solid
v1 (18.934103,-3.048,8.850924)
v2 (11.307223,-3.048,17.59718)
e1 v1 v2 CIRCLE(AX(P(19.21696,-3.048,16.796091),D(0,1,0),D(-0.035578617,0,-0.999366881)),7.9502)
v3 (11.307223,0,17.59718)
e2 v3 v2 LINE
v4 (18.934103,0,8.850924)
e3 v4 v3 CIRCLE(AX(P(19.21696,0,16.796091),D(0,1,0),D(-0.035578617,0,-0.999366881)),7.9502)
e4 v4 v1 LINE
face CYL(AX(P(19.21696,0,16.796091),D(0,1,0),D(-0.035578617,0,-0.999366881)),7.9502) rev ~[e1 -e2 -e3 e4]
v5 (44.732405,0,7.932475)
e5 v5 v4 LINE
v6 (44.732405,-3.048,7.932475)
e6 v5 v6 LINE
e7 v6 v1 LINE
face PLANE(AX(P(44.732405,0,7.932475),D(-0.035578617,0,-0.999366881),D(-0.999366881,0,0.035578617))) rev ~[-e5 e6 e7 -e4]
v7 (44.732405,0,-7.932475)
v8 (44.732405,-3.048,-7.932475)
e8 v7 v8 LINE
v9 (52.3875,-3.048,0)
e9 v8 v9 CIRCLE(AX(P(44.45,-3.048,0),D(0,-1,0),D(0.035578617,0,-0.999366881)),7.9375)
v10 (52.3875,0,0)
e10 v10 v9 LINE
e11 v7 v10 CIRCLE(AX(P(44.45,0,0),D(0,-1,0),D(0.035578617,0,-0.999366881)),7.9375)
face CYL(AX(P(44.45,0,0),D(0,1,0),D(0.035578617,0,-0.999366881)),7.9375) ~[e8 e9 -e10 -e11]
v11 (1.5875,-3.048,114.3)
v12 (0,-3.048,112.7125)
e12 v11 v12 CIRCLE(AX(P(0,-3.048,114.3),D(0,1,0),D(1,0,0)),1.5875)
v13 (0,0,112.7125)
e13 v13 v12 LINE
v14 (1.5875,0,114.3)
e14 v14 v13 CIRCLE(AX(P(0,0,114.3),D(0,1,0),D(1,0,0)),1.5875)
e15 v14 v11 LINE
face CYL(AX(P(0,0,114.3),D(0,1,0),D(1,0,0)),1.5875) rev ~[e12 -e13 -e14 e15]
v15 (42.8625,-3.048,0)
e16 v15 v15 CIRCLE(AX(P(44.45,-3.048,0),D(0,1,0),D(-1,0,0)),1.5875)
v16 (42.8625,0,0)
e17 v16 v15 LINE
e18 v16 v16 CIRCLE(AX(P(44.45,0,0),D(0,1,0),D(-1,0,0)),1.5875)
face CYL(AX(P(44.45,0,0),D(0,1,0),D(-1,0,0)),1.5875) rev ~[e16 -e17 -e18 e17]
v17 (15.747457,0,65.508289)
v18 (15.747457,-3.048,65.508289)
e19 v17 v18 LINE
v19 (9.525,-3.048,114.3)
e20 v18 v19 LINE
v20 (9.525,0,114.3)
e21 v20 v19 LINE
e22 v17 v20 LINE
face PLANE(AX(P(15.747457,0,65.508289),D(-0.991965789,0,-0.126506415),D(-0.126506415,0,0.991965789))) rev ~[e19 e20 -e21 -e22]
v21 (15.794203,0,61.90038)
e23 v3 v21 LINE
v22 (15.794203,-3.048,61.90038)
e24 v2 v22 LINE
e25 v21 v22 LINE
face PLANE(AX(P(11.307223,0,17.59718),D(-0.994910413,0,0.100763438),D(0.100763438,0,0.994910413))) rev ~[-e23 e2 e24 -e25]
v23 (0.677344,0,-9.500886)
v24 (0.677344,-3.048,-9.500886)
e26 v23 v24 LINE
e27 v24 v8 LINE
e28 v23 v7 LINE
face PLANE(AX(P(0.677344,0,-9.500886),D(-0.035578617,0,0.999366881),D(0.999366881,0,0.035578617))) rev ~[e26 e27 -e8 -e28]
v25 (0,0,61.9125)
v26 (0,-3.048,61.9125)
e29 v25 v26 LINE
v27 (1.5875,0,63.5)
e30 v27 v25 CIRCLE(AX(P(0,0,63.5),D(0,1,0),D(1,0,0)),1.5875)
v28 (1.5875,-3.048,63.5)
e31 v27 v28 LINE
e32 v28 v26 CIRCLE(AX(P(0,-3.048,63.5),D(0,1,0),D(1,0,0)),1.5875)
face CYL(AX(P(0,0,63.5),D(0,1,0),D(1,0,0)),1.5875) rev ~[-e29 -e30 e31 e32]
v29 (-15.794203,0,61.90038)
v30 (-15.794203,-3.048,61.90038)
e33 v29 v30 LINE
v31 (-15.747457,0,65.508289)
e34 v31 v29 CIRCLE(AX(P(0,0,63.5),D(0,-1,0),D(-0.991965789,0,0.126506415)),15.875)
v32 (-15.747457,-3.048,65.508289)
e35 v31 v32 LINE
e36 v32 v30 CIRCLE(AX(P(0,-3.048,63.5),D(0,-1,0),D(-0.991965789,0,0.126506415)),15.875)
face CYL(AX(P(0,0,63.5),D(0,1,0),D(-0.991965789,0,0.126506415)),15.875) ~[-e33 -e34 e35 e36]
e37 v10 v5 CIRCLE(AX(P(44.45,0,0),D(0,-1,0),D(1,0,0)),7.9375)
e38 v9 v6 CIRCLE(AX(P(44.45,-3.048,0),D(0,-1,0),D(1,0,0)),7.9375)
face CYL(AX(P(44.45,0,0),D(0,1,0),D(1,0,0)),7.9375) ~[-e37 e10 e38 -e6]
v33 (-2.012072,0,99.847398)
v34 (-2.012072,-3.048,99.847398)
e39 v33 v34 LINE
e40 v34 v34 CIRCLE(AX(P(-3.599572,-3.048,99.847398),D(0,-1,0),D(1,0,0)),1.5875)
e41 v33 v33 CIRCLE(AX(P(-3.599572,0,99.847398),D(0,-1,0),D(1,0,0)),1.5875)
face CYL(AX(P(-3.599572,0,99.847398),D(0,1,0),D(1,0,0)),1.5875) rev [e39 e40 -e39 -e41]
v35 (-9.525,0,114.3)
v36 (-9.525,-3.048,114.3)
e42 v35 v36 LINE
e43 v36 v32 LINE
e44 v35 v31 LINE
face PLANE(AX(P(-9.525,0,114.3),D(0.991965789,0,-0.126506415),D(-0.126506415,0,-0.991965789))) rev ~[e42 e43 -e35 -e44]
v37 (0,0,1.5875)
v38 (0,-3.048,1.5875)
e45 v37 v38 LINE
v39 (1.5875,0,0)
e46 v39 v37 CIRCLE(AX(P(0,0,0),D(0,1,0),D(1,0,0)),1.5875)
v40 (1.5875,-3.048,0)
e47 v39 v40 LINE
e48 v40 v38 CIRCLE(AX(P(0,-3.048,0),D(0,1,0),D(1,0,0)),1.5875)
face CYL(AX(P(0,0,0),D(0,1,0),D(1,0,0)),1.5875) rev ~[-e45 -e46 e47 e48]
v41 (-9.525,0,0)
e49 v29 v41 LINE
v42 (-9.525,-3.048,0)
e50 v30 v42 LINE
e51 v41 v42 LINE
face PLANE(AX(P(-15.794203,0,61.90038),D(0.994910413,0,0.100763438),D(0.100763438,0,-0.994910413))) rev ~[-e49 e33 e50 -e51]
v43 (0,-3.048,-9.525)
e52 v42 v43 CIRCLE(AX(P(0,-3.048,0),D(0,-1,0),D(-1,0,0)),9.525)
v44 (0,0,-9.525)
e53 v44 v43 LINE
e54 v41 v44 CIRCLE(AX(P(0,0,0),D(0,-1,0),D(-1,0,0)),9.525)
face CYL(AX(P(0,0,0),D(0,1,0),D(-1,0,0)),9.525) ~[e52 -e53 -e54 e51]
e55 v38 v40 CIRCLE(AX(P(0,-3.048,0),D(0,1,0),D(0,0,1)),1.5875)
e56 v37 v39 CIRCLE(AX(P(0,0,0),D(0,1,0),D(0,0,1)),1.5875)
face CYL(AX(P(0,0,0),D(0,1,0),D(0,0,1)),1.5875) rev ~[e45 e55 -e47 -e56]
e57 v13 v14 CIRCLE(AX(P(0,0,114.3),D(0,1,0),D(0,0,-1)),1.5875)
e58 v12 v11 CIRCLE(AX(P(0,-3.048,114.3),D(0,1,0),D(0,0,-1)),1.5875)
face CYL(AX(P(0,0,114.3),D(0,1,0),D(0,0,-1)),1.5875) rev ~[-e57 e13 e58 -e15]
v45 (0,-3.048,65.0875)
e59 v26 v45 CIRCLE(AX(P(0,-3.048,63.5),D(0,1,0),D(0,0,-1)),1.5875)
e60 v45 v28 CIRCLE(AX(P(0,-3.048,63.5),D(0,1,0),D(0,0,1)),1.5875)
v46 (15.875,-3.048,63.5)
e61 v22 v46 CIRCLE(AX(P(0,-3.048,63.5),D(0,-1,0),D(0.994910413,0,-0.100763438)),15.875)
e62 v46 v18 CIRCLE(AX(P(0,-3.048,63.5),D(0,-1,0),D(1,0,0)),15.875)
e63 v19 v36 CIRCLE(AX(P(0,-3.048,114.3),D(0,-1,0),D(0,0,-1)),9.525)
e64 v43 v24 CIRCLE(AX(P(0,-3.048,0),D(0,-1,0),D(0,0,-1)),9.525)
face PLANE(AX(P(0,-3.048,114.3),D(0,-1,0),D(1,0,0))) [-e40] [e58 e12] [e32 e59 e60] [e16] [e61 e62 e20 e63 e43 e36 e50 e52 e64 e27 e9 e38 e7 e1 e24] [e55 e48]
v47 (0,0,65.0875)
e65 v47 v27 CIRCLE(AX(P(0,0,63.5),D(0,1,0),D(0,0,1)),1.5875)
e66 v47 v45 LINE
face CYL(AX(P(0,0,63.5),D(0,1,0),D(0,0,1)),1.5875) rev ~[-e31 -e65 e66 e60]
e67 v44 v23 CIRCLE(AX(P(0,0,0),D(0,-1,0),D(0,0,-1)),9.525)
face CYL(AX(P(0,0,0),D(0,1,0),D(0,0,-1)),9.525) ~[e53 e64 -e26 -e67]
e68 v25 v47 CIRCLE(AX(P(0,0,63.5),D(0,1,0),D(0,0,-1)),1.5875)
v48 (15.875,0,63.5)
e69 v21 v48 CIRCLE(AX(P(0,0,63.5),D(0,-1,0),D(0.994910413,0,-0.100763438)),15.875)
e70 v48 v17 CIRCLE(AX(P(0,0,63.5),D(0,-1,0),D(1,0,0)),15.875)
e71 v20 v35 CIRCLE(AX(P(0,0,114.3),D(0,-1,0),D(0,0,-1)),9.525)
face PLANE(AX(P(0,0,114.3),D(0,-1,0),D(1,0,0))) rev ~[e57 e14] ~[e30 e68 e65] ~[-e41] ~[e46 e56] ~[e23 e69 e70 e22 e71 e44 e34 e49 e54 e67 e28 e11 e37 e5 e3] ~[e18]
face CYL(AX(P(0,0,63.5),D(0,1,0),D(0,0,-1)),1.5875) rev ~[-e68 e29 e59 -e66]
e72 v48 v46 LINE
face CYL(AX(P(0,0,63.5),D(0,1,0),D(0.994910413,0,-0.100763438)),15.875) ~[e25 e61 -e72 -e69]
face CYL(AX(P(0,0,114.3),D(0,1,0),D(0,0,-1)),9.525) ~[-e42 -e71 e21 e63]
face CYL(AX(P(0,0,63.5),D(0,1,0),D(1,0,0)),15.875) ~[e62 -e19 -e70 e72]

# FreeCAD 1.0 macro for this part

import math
import FreeCAD as App
import Part
import Sketcher
Q = App.Units.Quantity

doc = App.newDocument("Part")
body = doc.addObject("PartDesign::Body", "Body")

sketch1 = body.newObject("Sketcher::SketchObject", "Sketch")
sketch1.AttachmentSupport = (doc.getObject("XZ_Plane"), [""])
sketch1.MapMode = "FlatFace"
sketch1.addGeometry([
    Part.ArcOfCircle(Part.Circle(App.Vector(0, 0, 0), App.Vector(0, 0, 1), 9.525), math.radians(-90), math.radians(-85.92213)),
    Part.LineSegment(App.Vector(0.677344, -9.500886, 0), App.Vector(44.732405, -7.932475, 0)),
    Part.ArcOfCircle(Part.Circle(App.Vector(44.45, 0, 0), App.Vector(0, 0, 1), 7.9375), math.radians(-87.961065), math.radians(0)),
    Part.ArcOfCircle(Part.Circle(App.Vector(44.45, 0, 0), App.Vector(0, 0, 1), 7.9375), math.radians(0), math.radians(87.961065)),
    Part.LineSegment(App.Vector(44.732405, 7.932475, 0), App.Vector(18.934103, 8.850924, 0)),
    Part.ArcOfCircle(Part.Circle(App.Vector(19.21696, 16.796091, 0), App.Vector(0, 0, 1), 7.9502), math.radians(174.216866), math.radians(267.961065)),
    Part.LineSegment(App.Vector(11.307223, 17.59718, 0), App.Vector(15.794203, 61.90038, 0)),
    Part.ArcOfCircle(Part.Circle(App.Vector(0, 63.5, 0), App.Vector(0, 0, 1), 15.875), math.radians(-5.783134), math.radians(0)),
    Part.ArcOfCircle(Part.Circle(App.Vector(0, 63.5, 0), App.Vector(0, 0, 1), 15.875), math.radians(0), math.radians(7.267758)),
    Part.LineSegment(App.Vector(15.747457, 65.508289, 0), App.Vector(9.525, 114.3, 0)),
    Part.ArcOfCircle(Part.Circle(App.Vector(0, 114.3, 0), App.Vector(0, 0, 1), 9.525), math.radians(0), math.radians(180)),
    Part.LineSegment(App.Vector(-9.525, 114.3, 0), App.Vector(-15.747457, 65.508289, 0)),
    Part.ArcOfCircle(Part.Circle(App.Vector(0, 63.5, 0), App.Vector(0, 0, 1), 15.875), math.radians(172.732242), math.radians(185.783134)),
    Part.LineSegment(App.Vector(-15.794203, 61.90038, 0), App.Vector(-9.525, 0, 0)),
    Part.ArcOfCircle(Part.Circle(App.Vector(0, 0, 0), App.Vector(0, 0, 1), 9.525), math.radians(180), math.radians(270)),
    Part.ArcOfCircle(Part.Circle(App.Vector(0, 0, 0), App.Vector(0, 0, 1), 1.5875), math.radians(90), math.radians(360)),
    Part.ArcOfCircle(Part.Circle(App.Vector(0, 0, 0), App.Vector(0, 0, 1), 1.5875), math.radians(0), math.radians(90)),
    Part.Circle(App.Vector(44.45, 0, 0), App.Vector(0, 0, 1), 1.5875),
    Part.ArcOfCircle(Part.Circle(App.Vector(0, 63.5, 0), App.Vector(0, 0, 1), 1.5875), math.radians(0), math.radians(90)),
    Part.ArcOfCircle(Part.Circle(App.Vector(0, 63.5, 0), App.Vector(0, 0, 1), 1.5875), math.radians(-90), math.radians(0)),
    Part.ArcOfCircle(Part.Circle(App.Vector(0, 63.5, 0), App.Vector(0, 0, 1), 1.5875), math.radians(90), math.radians(270)),
    Part.Circle(App.Vector(-3.599572, 99.847398, 0), App.Vector(0, 0, 1), 1.5875),
    Part.ArcOfCircle(Part.Circle(App.Vector(0, 114.3, 0), App.Vector(0, 0, 1), 1.5875), math.radians(0), math.radians(270)),
    Part.ArcOfCircle(Part.Circle(App.Vector(0, 114.3, 0), App.Vector(0, 0, 1), 1.5875), math.radians(-90), math.radians(0)),
], False)
sketch1.addConstraint([
    Sketcher.Constraint("Coincident", 0, 2, 1, 1),
    Sketcher.Constraint("Tangent", 1, 2, 2, 1),
    Sketcher.Constraint("Tangent", 2, 2, 3, 1),
    Sketcher.Constraint("Tangent", 3, 2, 4, 1),
    Sketcher.Constraint("Tangent", 4, 2, 5, 2),
    Sketcher.Constraint("Tangent", 5, 1, 6, 1),
    Sketcher.Constraint("Tangent", 6, 2, 7, 1),
    Sketcher.Constraint("Tangent", 7, 2, 8, 1),
    Sketcher.Constraint("Tangent", 8, 2, 9, 1),
    Sketcher.Constraint("Coincident", 9, 2, 10, 1),
    Sketcher.Constraint("Coincident", 10, 2, 11, 1),
    Sketcher.Constraint("Tangent", 11, 2, 12, 1),
    Sketcher.Constraint("Tangent", 12, 2, 13, 1),
    Sketcher.Constraint("Coincident", 13, 2, 14, 1),
    Sketcher.Constraint("Tangent", 14, 2, 0, 1),
    Sketcher.Constraint("Tangent", 15, 1, 16, 2),
    Sketcher.Constraint("Coincident", 16, 1, 15, 2),
    Sketcher.Constraint("Tangent", 18, 1, 19, 2),
    Sketcher.Constraint("Tangent", 19, 1, 20, 2),
    Sketcher.Constraint("Tangent", 20, 1, 18, 2),
    Sketcher.Constraint("Tangent", 22, 1, 23, 2),
    Sketcher.Constraint("Coincident", 23, 1, 22, 2),
    Sketcher.Constraint("Coincident", 0, 3, -1, 1),
    Sketcher.Constraint("Coincident", 15, 3, -1, 1),
    Sketcher.Constraint("Coincident", 12, 3, 7, 3),
    Sketcher.Constraint("Coincident", 17, 3, 2, 3),
    Sketcher.Constraint("Coincident", 18, 3, 7, 3),
    Sketcher.Constraint("Coincident", 22, 3, 10, 3),
    Sketcher.Constraint("Equal", 2, 3),
    Sketcher.Constraint("Equal", 7, 8),
    Sketcher.Constraint("Equal", 0, 10),
    Sketcher.Constraint("Equal", 8, 12),
    Sketcher.Constraint("Equal", 10, 14),
    Sketcher.Constraint("Equal", 16, 17),
    Sketcher.Constraint("Equal", 17, 18),
    Sketcher.Constraint("Equal", 20, 21),
    Sketcher.Constraint("Equal", 21, 22),
    Sketcher.Constraint("Symmetric", 9, 2, 10, 2, -2),
    Sketcher.Constraint("Symmetric", 6, 2, 12, 2, -2),
    Sketcher.Constraint("Symmetric", 1, 2, 3, 2, -1),
    Sketcher.Constraint("PointOnObject", 2, 2, -1),
    Sketcher.Constraint("PointOnObject", 13, 2, -1),
    Sketcher.Constraint("PointOnObject", 14, 2, -2),
    Sketcher.Constraint("PointOnObject", 15, 1, -2),
    Sketcher.Constraint("PointOnObject", 16, 1, -1),
    Sketcher.Constraint("PointOnObject", 19, 1, -2),
    Sketcher.Constraint("PointOnObject", 20, 1, -2),
    Sketcher.Constraint("PointOnObject", 23, 1, -2),
    Sketcher.Constraint("Horizontal", 20, 3, 7, 2),
    Sketcher.Constraint("Horizontal", 23, 3, 9, 2),
    Sketcher.Constraint("Horizontal", 7, 2, 18, 1),
    Sketcher.Constraint("Horizontal", 10, 2, 22, 1),
    Sketcher.Constraint("Diameter", 17, Q("0.125 in")),
    Sketcher.Constraint("Radius", 0, Q("0.375 in")),
    Sketcher.Constraint("Radius", 2, Q("0.3125 in")),
    Sketcher.Constraint("Radius", 5, Q("0.313 in")),
    Sketcher.Constraint("Radius", 7, Q("0.625 in")),
    Sketcher.Constraint("DistanceY", 8, 3, 10, 3, Q("2 in")),
    Sketcher.Constraint("DistanceY", -1, 1, 7, 3, Q("2.5 in")),
    Sketcher.Constraint("DistanceX", -1, 1, 2, 3, Q("1.75 in")),
    Sketcher.Constraint("DistanceY", -1, 1, 21, 3, Q("3.9309999 in")),
    Sketcher.Constraint("Distance", 1, Q("44.082972 mm")),
    Sketcher.Constraint("DistanceX", 21, 3, -1, 1, Q("3.599572 mm")),
])
pad1 = body.newObject("PartDesign::Pad", "Pad")
pad1.Profile = sketch1
pad1.Length = Q("0.12 in")

doc.recompute()
